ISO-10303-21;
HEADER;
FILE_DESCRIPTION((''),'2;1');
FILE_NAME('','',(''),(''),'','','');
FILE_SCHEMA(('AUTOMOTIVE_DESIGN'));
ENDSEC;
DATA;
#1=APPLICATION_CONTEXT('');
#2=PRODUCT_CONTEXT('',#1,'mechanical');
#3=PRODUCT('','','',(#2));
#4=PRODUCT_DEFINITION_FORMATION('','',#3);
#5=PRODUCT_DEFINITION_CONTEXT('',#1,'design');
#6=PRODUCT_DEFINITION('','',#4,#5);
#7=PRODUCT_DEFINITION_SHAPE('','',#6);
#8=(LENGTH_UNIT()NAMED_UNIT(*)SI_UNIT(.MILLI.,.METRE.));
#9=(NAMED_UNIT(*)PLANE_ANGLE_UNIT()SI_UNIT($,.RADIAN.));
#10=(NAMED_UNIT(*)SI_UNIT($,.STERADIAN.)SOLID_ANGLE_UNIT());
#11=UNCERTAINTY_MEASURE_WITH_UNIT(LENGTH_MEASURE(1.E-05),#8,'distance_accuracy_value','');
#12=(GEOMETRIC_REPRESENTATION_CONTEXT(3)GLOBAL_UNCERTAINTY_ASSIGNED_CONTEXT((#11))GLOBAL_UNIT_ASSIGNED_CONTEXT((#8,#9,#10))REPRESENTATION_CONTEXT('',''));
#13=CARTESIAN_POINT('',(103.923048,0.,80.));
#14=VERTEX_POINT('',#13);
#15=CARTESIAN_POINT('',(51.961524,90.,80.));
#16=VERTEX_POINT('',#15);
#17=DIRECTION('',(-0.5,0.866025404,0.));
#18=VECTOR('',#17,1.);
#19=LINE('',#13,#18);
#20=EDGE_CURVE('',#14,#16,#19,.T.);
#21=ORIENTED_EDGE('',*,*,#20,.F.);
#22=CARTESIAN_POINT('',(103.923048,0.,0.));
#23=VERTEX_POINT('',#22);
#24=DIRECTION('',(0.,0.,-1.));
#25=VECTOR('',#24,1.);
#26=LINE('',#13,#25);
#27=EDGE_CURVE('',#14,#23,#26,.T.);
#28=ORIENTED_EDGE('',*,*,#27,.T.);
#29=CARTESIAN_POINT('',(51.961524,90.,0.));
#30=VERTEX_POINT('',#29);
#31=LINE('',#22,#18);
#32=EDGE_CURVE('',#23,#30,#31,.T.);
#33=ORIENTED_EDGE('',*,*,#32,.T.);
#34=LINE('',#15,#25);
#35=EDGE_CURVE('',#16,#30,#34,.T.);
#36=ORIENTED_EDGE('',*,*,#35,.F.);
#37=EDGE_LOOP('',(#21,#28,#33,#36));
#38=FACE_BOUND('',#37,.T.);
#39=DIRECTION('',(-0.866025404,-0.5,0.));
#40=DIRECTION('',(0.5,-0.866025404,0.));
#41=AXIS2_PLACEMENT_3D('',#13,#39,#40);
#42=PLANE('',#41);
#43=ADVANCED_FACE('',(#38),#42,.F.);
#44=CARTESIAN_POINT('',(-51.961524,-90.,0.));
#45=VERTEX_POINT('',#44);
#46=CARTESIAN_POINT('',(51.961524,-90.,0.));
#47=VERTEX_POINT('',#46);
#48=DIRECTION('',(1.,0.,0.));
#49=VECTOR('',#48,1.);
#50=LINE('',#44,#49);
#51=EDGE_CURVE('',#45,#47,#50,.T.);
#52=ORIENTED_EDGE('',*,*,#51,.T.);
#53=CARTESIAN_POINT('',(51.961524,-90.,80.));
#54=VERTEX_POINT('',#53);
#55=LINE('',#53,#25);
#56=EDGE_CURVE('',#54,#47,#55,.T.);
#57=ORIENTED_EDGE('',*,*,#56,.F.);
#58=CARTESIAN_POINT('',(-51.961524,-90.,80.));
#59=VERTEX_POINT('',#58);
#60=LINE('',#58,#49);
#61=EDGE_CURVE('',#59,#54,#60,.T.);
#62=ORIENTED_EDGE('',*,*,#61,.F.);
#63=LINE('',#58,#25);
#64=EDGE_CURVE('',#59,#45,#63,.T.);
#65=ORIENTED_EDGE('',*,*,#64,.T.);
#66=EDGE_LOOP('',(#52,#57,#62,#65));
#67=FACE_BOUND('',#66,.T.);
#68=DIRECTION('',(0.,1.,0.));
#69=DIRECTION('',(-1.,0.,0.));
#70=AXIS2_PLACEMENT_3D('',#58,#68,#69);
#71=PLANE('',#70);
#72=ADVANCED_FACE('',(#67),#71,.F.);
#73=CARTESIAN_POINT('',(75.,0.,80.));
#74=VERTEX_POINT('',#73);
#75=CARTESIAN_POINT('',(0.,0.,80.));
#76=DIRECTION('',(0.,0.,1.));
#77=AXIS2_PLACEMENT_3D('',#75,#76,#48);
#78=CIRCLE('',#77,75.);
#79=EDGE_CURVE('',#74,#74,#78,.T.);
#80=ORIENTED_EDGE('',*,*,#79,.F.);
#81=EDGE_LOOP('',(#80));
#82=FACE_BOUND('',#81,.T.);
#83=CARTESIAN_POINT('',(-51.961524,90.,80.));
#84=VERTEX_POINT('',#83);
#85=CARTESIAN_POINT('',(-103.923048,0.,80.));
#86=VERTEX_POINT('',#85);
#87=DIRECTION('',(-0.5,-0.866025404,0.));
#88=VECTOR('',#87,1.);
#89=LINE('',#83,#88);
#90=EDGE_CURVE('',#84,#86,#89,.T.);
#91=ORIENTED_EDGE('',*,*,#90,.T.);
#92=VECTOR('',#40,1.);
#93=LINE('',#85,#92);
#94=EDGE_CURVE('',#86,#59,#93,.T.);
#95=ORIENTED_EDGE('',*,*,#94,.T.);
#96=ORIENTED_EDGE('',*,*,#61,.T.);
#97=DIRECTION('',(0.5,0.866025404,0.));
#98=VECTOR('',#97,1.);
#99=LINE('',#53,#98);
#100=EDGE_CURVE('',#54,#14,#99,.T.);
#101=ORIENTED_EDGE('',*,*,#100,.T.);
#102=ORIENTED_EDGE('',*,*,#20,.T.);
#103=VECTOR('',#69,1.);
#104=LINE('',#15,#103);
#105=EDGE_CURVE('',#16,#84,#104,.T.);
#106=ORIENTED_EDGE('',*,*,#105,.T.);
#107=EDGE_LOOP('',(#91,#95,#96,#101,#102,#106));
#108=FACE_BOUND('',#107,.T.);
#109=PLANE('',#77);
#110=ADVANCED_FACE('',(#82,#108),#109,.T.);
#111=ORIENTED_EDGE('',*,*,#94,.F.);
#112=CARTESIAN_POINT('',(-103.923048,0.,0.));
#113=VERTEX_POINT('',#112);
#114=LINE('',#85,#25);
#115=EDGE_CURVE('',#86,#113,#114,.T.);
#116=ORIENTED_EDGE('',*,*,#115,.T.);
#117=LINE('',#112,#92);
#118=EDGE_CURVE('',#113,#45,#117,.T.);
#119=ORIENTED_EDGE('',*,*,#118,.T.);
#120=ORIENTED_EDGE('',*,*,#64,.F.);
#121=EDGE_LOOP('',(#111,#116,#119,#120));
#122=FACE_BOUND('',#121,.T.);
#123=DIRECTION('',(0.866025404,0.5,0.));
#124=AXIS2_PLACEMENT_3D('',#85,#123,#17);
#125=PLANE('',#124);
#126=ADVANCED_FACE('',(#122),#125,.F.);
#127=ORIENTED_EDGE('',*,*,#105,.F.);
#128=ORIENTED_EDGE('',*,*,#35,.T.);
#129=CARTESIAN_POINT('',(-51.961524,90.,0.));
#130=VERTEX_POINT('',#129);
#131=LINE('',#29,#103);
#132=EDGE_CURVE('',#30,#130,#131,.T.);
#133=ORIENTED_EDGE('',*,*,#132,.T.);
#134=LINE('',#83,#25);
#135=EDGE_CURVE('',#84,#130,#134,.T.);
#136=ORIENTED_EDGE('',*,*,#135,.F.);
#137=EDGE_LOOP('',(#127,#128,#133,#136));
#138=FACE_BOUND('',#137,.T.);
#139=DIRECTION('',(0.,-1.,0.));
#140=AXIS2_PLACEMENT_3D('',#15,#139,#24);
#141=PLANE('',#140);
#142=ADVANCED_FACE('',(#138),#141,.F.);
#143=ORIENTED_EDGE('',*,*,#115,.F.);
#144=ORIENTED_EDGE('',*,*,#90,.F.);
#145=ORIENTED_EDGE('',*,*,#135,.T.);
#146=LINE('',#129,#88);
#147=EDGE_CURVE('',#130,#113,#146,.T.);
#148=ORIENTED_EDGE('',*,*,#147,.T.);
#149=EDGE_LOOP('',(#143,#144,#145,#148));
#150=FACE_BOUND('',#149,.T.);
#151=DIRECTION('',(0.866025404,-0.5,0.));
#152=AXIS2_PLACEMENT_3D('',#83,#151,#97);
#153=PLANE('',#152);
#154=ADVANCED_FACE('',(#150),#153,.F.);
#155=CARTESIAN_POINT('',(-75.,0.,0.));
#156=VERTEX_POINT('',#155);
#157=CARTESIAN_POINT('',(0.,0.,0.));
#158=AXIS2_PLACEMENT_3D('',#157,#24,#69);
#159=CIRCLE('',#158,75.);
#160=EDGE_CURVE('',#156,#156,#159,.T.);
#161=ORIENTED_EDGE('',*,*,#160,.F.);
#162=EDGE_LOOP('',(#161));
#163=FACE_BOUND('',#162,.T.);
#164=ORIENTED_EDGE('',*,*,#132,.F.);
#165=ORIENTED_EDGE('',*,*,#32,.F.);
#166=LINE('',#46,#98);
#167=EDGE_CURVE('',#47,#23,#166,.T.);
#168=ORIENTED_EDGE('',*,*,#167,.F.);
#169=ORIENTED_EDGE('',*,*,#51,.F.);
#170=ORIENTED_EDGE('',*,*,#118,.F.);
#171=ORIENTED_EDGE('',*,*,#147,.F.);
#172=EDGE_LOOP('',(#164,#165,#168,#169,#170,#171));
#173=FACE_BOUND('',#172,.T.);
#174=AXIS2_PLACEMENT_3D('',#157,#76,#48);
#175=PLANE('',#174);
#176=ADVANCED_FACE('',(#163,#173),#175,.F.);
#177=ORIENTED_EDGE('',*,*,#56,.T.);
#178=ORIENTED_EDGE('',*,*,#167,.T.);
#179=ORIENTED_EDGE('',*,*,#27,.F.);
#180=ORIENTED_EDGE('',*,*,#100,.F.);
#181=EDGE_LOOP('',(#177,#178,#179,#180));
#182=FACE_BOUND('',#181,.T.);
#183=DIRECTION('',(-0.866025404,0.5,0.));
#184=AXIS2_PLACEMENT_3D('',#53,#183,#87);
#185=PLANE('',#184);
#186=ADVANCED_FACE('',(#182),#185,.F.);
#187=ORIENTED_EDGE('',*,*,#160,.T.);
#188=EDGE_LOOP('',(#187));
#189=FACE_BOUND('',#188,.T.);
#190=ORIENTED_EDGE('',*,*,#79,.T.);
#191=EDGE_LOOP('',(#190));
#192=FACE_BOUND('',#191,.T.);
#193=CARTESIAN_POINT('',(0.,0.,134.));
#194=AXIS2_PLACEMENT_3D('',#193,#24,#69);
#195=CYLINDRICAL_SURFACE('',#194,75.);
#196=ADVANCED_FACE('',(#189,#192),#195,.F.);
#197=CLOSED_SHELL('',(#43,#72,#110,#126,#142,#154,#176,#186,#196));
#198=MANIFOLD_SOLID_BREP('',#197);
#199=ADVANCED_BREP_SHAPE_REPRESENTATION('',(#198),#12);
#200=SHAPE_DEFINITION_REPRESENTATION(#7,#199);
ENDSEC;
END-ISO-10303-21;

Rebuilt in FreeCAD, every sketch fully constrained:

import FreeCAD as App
import Part
import Sketcher
from FreeCAD import Vector
Q = App.Units.Quantity


def add_polygon(sketch, points):
    """Adds a closed chain of lines whose ends are joined by coincident constraints."""
    first, n = sketch.GeometryCount, len(points)
    for a, b in zip(points, points[1:] + points[:1]):
        sketch.addGeometry(Part.LineSegment(App.Vector(*a, 0), App.Vector(*b, 0)), False)
    for i in range(n):
        sketch.addConstraint(Sketcher.Constraint("Coincident", first + i, 2, first + (i + 1) % n, 1))

doc = App.newDocument("Part")
body = doc.addObject("PartDesign::Body", "Body")

sketch1 = body.newObject("Sketcher::SketchObject", "Sketch")
sketch1.AttachmentSupport = (doc.getObject("XY_Plane"), [""])
sketch1.MapMode = "FlatFace"
add_polygon(sketch1, [(103.923048, 0), (51.961524, 90), (-51.961524, 90), (-103.923048, 0), (-51.961524, -90), (51.961524, -90)])
sketch1.addConstraint(Sketcher.Constraint("Horizontal", 1))
sketch1.addConstraint(Sketcher.Constraint("Horizontal", 4))
sketch1.addConstraint(Sketcher.Constraint("Symmetric", 0, 2, 3, 2, -1, 1))
sketch1.addConstraint(Sketcher.Constraint("Symmetric", 2, 2, 5, 2, -1, 1))
sketch1.addConstraint(Sketcher.Constraint("PointOnObject", 2, 2, -1))
sketch1.addConstraint(Sketcher.Constraint("Parallel", 2, 5))
sketch1.addConstraint(Sketcher.Constraint("Vertical", 1, 2, 3, 2))
sketch1.addConstraint(Sketcher.Constraint("Angle", 0, Q("120 deg")))
sketch1.addConstraint(Sketcher.Constraint("DistanceY", -1, 1, 0, 2, Q("90 mm")))
sketch1.addConstraint(Sketcher.Constraint("DistanceX", 1, 2, 1, 1, Q("103.923048 mm")))
pad1 = body.newObject("PartDesign::Pad", "Pad")
pad1.Profile = sketch1
pad1.Length = 80

sketch2 = body.newObject("Sketcher::SketchObject", "Sketch001")
sketch2.AttachmentSupport = (doc.getObject("XY_Plane"), [""])
sketch2.MapMode = "FlatFace"
sketch2.addGeometry(Part.Circle(Vector(0, 0, 0), Vector(0, 0, 1), 75), False)
sketch2.addConstraint(Sketcher.Constraint("Coincident", 0, 3, -1, 1))
sketch2.addConstraint(Sketcher.Constraint("Diameter", 0, Q("150 mm")))
pocket1 = body.newObject("PartDesign::Pocket", "Pocket")
pocket1.Profile = sketch2
pocket1.Length = 134
pocket1.Reversed = True

doc.recompute()
